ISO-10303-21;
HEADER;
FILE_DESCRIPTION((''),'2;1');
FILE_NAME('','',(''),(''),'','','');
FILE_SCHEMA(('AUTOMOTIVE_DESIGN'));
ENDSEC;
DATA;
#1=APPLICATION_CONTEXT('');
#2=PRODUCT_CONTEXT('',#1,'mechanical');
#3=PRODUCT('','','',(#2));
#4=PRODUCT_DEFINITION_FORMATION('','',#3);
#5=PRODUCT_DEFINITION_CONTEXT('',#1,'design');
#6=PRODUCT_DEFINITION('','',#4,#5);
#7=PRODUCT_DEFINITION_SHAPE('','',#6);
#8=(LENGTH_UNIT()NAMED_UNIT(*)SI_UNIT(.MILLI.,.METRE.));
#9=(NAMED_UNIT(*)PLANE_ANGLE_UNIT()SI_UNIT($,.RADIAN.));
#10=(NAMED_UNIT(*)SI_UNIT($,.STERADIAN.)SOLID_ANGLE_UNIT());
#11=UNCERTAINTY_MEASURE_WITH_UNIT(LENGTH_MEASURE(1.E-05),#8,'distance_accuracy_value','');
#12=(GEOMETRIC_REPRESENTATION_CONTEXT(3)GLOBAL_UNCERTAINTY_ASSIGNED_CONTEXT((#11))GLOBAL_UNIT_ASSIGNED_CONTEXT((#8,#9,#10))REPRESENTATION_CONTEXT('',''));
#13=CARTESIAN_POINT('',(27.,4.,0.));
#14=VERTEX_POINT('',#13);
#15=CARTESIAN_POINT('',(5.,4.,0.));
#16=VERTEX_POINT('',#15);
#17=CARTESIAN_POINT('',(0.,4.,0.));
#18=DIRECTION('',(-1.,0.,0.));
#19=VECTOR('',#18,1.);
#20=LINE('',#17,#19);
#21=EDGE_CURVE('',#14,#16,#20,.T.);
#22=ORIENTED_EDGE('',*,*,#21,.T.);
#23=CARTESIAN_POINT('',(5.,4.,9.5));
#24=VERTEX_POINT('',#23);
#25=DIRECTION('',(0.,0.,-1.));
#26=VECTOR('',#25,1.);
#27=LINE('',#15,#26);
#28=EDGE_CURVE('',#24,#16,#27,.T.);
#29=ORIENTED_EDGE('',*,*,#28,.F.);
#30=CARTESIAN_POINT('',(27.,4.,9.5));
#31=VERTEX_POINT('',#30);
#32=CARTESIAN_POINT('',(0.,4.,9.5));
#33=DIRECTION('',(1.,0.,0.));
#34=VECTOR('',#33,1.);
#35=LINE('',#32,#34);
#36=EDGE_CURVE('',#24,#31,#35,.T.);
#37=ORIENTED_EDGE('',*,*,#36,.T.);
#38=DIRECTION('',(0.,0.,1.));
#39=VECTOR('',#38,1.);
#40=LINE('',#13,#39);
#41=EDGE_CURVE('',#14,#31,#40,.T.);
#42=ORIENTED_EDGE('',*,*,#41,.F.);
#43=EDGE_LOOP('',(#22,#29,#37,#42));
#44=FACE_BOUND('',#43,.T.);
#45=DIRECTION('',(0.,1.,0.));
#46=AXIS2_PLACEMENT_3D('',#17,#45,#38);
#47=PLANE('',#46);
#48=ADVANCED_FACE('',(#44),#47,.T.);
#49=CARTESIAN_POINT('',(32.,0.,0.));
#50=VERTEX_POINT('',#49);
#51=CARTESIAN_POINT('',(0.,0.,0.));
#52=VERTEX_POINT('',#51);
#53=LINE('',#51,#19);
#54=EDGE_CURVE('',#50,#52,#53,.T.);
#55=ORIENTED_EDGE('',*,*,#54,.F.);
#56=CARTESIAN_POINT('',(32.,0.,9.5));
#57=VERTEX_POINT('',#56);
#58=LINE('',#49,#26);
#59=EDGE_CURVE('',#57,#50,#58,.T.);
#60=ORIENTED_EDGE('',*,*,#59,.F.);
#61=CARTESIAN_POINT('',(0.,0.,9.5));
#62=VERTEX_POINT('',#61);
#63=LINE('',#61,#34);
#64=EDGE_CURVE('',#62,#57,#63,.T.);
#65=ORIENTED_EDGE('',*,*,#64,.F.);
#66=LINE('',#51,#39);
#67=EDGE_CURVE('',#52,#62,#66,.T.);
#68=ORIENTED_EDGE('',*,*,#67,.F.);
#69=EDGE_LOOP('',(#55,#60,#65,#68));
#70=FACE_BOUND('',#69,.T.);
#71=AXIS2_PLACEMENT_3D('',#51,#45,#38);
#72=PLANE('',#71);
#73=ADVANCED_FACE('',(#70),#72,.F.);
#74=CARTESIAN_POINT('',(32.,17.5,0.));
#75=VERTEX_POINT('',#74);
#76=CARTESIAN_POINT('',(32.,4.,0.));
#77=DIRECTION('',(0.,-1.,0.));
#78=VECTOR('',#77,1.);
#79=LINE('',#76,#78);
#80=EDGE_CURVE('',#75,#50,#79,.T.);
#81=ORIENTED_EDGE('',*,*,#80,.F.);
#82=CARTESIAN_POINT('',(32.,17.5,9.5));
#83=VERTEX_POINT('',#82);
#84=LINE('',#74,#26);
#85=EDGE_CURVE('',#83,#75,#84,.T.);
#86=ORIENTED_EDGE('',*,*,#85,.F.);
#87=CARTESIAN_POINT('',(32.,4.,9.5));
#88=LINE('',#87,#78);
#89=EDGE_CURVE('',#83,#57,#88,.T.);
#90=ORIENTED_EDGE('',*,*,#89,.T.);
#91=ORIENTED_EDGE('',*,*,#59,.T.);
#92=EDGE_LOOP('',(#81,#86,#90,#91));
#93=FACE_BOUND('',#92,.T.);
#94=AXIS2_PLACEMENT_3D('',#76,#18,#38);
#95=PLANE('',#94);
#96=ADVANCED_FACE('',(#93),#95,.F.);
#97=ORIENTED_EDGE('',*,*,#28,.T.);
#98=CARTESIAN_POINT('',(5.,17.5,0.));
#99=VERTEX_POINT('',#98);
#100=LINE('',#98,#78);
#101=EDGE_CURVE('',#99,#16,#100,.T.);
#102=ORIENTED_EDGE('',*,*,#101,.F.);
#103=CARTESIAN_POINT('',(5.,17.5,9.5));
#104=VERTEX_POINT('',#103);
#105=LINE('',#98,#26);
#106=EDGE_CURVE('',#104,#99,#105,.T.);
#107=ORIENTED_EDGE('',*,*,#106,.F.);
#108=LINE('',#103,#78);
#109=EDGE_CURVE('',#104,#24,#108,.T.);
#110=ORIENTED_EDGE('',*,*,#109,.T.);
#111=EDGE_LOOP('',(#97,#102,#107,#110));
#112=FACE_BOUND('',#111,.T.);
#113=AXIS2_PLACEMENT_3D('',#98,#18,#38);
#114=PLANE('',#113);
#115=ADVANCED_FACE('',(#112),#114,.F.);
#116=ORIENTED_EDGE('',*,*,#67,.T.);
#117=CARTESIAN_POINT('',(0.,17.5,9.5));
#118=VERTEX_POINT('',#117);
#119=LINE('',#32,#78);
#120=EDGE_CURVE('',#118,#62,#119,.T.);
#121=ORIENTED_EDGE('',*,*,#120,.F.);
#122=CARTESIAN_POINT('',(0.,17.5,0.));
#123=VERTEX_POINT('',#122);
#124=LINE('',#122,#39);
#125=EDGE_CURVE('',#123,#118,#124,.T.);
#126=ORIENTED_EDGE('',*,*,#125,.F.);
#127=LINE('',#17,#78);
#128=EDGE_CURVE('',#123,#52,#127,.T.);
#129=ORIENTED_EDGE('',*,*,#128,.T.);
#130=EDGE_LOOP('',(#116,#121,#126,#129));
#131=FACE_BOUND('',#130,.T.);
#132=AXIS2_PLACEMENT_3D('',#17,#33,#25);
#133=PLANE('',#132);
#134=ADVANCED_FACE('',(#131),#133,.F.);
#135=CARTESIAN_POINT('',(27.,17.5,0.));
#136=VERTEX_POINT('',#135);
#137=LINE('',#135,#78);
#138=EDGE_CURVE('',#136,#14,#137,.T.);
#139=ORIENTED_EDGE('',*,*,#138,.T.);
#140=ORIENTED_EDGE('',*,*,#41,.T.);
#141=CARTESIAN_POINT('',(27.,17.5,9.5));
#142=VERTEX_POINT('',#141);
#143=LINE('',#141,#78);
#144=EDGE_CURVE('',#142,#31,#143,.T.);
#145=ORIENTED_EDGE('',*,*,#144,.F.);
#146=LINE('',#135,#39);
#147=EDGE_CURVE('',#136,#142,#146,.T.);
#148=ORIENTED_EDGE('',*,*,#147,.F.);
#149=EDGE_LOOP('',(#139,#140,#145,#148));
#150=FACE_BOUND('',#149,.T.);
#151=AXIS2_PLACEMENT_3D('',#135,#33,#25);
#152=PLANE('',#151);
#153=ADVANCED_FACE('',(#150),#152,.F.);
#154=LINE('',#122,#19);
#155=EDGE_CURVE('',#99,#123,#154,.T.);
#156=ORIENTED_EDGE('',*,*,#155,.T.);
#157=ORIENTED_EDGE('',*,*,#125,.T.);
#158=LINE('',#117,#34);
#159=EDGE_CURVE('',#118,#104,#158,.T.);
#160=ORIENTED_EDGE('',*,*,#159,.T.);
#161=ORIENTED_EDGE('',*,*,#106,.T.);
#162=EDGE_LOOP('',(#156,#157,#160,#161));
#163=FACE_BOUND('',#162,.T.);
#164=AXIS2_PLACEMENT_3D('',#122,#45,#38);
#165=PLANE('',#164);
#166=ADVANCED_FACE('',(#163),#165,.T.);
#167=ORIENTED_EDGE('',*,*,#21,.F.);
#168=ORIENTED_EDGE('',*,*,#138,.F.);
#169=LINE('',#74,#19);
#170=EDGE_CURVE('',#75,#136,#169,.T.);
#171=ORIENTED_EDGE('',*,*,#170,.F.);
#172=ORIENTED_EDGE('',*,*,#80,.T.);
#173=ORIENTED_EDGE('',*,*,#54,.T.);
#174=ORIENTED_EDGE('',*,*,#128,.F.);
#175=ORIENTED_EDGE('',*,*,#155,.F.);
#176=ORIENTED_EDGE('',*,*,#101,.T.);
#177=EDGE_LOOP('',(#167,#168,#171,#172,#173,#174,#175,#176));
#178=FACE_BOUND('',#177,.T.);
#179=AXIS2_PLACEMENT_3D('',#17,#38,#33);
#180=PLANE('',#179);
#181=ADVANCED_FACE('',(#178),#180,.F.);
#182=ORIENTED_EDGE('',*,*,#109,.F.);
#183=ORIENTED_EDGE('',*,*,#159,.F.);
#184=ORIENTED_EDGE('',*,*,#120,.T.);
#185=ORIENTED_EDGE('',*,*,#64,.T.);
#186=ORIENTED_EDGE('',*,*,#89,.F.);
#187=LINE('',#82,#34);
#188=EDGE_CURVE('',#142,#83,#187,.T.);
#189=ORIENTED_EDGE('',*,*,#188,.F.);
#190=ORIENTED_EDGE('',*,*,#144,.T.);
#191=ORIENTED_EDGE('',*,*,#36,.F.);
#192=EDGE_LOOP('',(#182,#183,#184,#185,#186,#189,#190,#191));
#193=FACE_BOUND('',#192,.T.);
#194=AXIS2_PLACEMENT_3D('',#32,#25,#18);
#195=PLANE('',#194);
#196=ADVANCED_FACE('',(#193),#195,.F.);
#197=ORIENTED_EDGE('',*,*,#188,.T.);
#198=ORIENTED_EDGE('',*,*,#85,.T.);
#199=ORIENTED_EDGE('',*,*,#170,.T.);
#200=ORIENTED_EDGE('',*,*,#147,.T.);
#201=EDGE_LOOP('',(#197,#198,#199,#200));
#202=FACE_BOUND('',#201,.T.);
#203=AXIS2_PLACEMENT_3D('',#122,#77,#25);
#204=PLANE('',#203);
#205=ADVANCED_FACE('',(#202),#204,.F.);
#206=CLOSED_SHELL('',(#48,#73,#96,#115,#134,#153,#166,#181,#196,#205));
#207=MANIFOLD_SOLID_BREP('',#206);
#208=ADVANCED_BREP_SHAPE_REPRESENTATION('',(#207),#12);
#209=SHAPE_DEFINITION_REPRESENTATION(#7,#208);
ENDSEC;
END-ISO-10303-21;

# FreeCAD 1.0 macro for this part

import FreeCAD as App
import Part
import Sketcher

V = App.Vector
Q = App.Units.Quantity

doc = App.newDocument("Part")
body = doc.addObject("PartDesign::Body", "Body")

# Sketch on XZ plane
sketch1 = body.newObject("Sketcher::SketchObject", "Sketch")
sketch1.AttachmentSupport = (doc.getObject("XZ_Plane"), [""])
sketch1.MapMode = "FlatFace"
sketch1.addGeometry(Part.LineSegment(V(0, 0, 0), V(0, 10, 0)), False)
sketch1.addGeometry(Part.LineSegment(V(0, 10, 0), V(32, 10, 0)), False)
sketch1.addGeometry(Part.LineSegment(V(32, 10, 0), V(32, 0, 0)), False)
sketch1.addGeometry(Part.LineSegment(V(32, 0, 0), V(0, 0, 0)), False)
sketch1.addConstraint(Sketcher.Constraint("Coincident", 0, 2, 1, 1))
sketch1.addConstraint(Sketcher.Constraint("Coincident", 1, 2, 2, 1))
sketch1.addConstraint(Sketcher.Constraint("Coincident", 2, 2, 3, 1))
sketch1.addConstraint(Sketcher.Constraint("Coincident", 3, 2, 0, 1))
sketch1.addConstraint(Sketcher.Constraint("Vertical", 0))
sketch1.addConstraint(Sketcher.Constraint("Horizontal", 1))
sketch1.addConstraint(Sketcher.Constraint("Vertical", 2))
sketch1.addConstraint(Sketcher.Constraint("Horizontal", 3))
sketch1.addConstraint(Sketcher.Constraint("Coincident", 3, 2, -1, 1))
sketch1.addConstraint(Sketcher.Constraint("DistanceX", 1, 1, 1, 2, Q("32 mm")))
sketch1.addConstraint(Sketcher.Constraint("DistanceY", 0, 1, 0, 2, Q("9.5 mm")))
pad1 = body.newObject("PartDesign::Pad", "Pad")
pad1.Profile = sketch1
pad1.Length = 4
pad1.Reversed = True

# Sketch on XZ plane
sketch2 = body.newObject("Sketcher::SketchObject", "Sketch001")
sketch2.AttachmentSupport = (doc.getObject("XZ_Plane"), [""])
sketch2.MapMode = "FlatFace"
sketch2.AttachmentOffset = App.Placement(V(0, 0, -4), App.Rotation())
sketch2.addGeometry(Part.LineSegment(V(0, 0, 0), V(0, 10, 0)), False)
sketch2.addGeometry(Part.LineSegment(V(0, 10, 0), V(5, 10, 0)), False)
sketch2.addGeometry(Part.LineSegment(V(5, 10, 0), V(5, 0, 0)), False)
sketch2.addGeometry(Part.LineSegment(V(5, 0, 0), V(0, 0, 0)), False)
sketch2.addConstraint(Sketcher.Constraint("Coincident", 0, 2, 1, 1))
sketch2.addConstraint(Sketcher.Constraint("Coincident", 1, 2, 2, 1))
sketch2.addConstraint(Sketcher.Constraint("Coincident", 2, 2, 3, 1))
sketch2.addConstraint(Sketcher.Constraint("Coincident", 3, 2, 0, 1))
sketch2.addConstraint(Sketcher.Constraint("Vertical", 0))
sketch2.addConstraint(Sketcher.Constraint("Horizontal", 1))
sketch2.addConstraint(Sketcher.Constraint("Vertical", 2))
sketch2.addConstraint(Sketcher.Constraint("Horizontal", 3))
sketch2.addConstraint(Sketcher.Constraint("Coincident", 3, 2, -1, 1))
sketch2.addConstraint(Sketcher.Constraint("DistanceX", 1, 1, 1, 2, Q("5 mm")))
sketch2.addConstraint(Sketcher.Constraint("DistanceY", 0, 1, 0, 2, Q("9.5 mm")))
pad2 = body.newObject("PartDesign::Pad", "Pad001")
pad2.Profile = sketch2
pad2.Length = 13.5
pad2.Reversed = True

# Sketch on XZ plane
sketch3 = body.newObject("Sketcher::SketchObject", "Sketch002")
sketch3.AttachmentSupport = (doc.getObject("XZ_Plane"), [""])
sketch3.MapMode = "FlatFace"
sketch3.AttachmentOffset = App.Placement(V(0, 0, -4), App.Rotation())
sketch3.addGeometry(Part.LineSegment(V(27, 0, 0), V(27, 10, 0)), False)
sketch3.addGeometry(Part.LineSegment(V(27, 10, 0), V(32, 10, 0)), False)
sketch3.addGeometry(Part.LineSegment(V(32, 10, 0), V(32, 0, 0)), False)
sketch3.addGeometry(Part.LineSegment(V(32, 0, 0), V(27, 0, 0)), False)
sketch3.addConstraint(Sketcher.Constraint("Coincident", 0, 2, 1, 1))
sketch3.addConstraint(Sketcher.Constraint("Coincident", 1, 2, 2, 1))
sketch3.addConstraint(Sketcher.Constraint("Coincident", 2, 2, 3, 1))
sketch3.addConstraint(Sketcher.Constraint("Coincident", 3, 2, 0, 1))
sketch3.addConstraint(Sketcher.Constraint("Vertical", 0))
sketch3.addConstraint(Sketcher.Constraint("Horizontal", 1))
sketch3.addConstraint(Sketcher.Constraint("Vertical", 2))
sketch3.addConstraint(Sketcher.Constraint("Horizontal", 3))
sketch3.addConstraint(Sketcher.Constraint("PointOnObject", 2, 2, -1))
sketch3.addConstraint(Sketcher.Constraint("DistanceX", 1, 1, 1, 2, Q("5 mm")))
sketch3.addConstraint(Sketcher.Constraint("DistanceY", 0, 1, 0, 2, Q("9.5 mm")))
sketch3.addConstraint(Sketcher.Constraint("DistanceX", -1, 1, 0, 2, Q("27 mm")))
pad3 = body.newObject("PartDesign::Pad", "Pad002")
pad3.Profile = sketch3
pad3.Length = 13.5
pad3.Reversed = True

doc.recompute()
